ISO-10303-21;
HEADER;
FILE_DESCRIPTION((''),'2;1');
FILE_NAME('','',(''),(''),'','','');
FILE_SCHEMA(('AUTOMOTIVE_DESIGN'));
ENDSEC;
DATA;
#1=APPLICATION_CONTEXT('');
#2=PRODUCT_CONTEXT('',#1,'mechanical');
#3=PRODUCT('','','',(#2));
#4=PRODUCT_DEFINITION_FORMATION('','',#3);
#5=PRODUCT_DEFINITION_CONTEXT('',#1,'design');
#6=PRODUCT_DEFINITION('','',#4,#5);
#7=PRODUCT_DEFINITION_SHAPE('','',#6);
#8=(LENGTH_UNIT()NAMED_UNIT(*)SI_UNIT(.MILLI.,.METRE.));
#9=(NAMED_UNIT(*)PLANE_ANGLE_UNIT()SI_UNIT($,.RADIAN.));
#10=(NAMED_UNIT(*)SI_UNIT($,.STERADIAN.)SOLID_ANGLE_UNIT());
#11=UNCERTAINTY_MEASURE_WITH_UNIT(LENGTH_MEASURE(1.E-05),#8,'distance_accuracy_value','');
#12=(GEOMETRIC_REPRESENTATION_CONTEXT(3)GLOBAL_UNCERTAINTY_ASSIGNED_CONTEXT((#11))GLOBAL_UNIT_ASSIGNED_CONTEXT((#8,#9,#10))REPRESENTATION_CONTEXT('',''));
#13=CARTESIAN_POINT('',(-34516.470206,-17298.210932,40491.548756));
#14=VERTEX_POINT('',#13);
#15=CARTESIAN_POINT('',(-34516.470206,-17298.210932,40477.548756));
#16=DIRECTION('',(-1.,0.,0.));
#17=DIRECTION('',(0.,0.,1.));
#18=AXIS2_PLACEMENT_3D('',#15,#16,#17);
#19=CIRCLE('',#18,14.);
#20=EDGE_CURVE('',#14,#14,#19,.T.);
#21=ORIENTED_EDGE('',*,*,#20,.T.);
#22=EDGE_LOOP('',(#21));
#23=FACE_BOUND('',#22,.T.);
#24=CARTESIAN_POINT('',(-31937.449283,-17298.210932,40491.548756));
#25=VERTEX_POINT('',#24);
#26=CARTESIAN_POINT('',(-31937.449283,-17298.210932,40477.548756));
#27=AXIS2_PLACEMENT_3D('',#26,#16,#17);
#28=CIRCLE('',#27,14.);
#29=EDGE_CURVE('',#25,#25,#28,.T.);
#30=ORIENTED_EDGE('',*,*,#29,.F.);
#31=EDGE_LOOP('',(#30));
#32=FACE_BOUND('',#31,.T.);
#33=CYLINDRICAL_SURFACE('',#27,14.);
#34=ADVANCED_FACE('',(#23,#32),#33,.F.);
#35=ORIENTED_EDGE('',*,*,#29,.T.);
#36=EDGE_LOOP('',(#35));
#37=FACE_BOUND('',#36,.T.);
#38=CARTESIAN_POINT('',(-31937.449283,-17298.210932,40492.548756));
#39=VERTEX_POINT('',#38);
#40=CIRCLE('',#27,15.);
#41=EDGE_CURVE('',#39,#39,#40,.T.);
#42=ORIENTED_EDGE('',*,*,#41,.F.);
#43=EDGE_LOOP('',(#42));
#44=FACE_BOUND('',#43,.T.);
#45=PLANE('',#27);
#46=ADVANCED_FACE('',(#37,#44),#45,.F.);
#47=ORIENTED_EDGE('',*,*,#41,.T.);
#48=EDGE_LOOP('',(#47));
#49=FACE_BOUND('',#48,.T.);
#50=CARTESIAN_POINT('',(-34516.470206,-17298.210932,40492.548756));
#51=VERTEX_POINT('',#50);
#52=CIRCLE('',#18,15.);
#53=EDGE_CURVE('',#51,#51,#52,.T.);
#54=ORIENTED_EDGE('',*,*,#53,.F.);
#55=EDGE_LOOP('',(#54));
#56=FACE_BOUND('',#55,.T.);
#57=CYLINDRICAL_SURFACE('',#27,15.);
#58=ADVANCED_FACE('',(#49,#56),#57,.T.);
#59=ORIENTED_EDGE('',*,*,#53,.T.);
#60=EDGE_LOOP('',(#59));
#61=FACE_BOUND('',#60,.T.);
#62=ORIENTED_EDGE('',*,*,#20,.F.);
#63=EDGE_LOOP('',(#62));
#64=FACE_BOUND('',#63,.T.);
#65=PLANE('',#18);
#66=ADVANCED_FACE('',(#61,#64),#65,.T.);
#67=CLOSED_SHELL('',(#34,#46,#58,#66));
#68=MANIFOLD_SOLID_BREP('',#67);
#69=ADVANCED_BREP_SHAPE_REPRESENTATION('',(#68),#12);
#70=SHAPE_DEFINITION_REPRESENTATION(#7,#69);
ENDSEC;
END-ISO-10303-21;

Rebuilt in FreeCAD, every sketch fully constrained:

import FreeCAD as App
import Part
import Sketcher

doc = App.newDocument("Part")
body = doc.addObject("PartDesign::Body", "Body")

# Sketch on YZ plane
sketch1 = body.newObject("Sketcher::SketchObject", "Sketch")
sketch1.AttachmentSupport = (doc.getObject("YZ_Plane"), [""])
sketch1.MapMode = "FlatFace"
sketch1.AttachmentOffset = App.Placement(App.Vector(0, 0, -31937.449283), App.Rotation())
sketch1.addGeometry([
    Part.Circle(App.Vector(-17298, 40478, 0), App.Vector(0, 0, 1), 15),
    Part.Circle(App.Vector(-17298, 40478, 0), App.Vector(0, 0, 1), 14),
], False)
sketch1.addConstraint([
    Sketcher.Constraint("Coincident", 1, 3, 0, 3),
    Sketcher.Constraint("Diameter", 0, 30.0),
    Sketcher.Constraint("Diameter", 1, 28.0),
    Sketcher.Constraint("DistanceX", 0, 3, -1, 1, 17298.210932),
    Sketcher.Constraint("DistanceY", -1, 1, 0, 3, 40477.548756),
])

# Sketch on XY plane
sketch2 = body.newObject("Sketcher::SketchObject", "Sketch001")
sketch2.AttachmentSupport = (doc.getObject("XY_Plane"), [""])
sketch2.MapMode = "FlatFace"
sketch2.AttachmentOffset = App.Placement(App.Vector(0, 0, 40477.548756), App.Rotation())
sketch2.addGeometry(Part.LineSegment(App.Vector(-31937, -17298, 0), App.Vector(-34516, -17298, 0)), False)
sketch2.addConstraint([
    Sketcher.Constraint("Horizontal", 0),
    Sketcher.Constraint("DistanceX", 0, 2, 0, 1, 2579.020922),
    Sketcher.Constraint("DistanceX", 0, 1, -1, 1, 31937.449283),
    Sketcher.Constraint("DistanceY", 0, 1, -1, 1, 17298.210932),
])
doc.recompute()

additivepipe = body.newObject("PartDesign::AdditivePipe", "AdditivePipe")
additivepipe.Profile = sketch1
additivepipe.Spine = (sketch2, ["Edge1"])

doc.recompute()
